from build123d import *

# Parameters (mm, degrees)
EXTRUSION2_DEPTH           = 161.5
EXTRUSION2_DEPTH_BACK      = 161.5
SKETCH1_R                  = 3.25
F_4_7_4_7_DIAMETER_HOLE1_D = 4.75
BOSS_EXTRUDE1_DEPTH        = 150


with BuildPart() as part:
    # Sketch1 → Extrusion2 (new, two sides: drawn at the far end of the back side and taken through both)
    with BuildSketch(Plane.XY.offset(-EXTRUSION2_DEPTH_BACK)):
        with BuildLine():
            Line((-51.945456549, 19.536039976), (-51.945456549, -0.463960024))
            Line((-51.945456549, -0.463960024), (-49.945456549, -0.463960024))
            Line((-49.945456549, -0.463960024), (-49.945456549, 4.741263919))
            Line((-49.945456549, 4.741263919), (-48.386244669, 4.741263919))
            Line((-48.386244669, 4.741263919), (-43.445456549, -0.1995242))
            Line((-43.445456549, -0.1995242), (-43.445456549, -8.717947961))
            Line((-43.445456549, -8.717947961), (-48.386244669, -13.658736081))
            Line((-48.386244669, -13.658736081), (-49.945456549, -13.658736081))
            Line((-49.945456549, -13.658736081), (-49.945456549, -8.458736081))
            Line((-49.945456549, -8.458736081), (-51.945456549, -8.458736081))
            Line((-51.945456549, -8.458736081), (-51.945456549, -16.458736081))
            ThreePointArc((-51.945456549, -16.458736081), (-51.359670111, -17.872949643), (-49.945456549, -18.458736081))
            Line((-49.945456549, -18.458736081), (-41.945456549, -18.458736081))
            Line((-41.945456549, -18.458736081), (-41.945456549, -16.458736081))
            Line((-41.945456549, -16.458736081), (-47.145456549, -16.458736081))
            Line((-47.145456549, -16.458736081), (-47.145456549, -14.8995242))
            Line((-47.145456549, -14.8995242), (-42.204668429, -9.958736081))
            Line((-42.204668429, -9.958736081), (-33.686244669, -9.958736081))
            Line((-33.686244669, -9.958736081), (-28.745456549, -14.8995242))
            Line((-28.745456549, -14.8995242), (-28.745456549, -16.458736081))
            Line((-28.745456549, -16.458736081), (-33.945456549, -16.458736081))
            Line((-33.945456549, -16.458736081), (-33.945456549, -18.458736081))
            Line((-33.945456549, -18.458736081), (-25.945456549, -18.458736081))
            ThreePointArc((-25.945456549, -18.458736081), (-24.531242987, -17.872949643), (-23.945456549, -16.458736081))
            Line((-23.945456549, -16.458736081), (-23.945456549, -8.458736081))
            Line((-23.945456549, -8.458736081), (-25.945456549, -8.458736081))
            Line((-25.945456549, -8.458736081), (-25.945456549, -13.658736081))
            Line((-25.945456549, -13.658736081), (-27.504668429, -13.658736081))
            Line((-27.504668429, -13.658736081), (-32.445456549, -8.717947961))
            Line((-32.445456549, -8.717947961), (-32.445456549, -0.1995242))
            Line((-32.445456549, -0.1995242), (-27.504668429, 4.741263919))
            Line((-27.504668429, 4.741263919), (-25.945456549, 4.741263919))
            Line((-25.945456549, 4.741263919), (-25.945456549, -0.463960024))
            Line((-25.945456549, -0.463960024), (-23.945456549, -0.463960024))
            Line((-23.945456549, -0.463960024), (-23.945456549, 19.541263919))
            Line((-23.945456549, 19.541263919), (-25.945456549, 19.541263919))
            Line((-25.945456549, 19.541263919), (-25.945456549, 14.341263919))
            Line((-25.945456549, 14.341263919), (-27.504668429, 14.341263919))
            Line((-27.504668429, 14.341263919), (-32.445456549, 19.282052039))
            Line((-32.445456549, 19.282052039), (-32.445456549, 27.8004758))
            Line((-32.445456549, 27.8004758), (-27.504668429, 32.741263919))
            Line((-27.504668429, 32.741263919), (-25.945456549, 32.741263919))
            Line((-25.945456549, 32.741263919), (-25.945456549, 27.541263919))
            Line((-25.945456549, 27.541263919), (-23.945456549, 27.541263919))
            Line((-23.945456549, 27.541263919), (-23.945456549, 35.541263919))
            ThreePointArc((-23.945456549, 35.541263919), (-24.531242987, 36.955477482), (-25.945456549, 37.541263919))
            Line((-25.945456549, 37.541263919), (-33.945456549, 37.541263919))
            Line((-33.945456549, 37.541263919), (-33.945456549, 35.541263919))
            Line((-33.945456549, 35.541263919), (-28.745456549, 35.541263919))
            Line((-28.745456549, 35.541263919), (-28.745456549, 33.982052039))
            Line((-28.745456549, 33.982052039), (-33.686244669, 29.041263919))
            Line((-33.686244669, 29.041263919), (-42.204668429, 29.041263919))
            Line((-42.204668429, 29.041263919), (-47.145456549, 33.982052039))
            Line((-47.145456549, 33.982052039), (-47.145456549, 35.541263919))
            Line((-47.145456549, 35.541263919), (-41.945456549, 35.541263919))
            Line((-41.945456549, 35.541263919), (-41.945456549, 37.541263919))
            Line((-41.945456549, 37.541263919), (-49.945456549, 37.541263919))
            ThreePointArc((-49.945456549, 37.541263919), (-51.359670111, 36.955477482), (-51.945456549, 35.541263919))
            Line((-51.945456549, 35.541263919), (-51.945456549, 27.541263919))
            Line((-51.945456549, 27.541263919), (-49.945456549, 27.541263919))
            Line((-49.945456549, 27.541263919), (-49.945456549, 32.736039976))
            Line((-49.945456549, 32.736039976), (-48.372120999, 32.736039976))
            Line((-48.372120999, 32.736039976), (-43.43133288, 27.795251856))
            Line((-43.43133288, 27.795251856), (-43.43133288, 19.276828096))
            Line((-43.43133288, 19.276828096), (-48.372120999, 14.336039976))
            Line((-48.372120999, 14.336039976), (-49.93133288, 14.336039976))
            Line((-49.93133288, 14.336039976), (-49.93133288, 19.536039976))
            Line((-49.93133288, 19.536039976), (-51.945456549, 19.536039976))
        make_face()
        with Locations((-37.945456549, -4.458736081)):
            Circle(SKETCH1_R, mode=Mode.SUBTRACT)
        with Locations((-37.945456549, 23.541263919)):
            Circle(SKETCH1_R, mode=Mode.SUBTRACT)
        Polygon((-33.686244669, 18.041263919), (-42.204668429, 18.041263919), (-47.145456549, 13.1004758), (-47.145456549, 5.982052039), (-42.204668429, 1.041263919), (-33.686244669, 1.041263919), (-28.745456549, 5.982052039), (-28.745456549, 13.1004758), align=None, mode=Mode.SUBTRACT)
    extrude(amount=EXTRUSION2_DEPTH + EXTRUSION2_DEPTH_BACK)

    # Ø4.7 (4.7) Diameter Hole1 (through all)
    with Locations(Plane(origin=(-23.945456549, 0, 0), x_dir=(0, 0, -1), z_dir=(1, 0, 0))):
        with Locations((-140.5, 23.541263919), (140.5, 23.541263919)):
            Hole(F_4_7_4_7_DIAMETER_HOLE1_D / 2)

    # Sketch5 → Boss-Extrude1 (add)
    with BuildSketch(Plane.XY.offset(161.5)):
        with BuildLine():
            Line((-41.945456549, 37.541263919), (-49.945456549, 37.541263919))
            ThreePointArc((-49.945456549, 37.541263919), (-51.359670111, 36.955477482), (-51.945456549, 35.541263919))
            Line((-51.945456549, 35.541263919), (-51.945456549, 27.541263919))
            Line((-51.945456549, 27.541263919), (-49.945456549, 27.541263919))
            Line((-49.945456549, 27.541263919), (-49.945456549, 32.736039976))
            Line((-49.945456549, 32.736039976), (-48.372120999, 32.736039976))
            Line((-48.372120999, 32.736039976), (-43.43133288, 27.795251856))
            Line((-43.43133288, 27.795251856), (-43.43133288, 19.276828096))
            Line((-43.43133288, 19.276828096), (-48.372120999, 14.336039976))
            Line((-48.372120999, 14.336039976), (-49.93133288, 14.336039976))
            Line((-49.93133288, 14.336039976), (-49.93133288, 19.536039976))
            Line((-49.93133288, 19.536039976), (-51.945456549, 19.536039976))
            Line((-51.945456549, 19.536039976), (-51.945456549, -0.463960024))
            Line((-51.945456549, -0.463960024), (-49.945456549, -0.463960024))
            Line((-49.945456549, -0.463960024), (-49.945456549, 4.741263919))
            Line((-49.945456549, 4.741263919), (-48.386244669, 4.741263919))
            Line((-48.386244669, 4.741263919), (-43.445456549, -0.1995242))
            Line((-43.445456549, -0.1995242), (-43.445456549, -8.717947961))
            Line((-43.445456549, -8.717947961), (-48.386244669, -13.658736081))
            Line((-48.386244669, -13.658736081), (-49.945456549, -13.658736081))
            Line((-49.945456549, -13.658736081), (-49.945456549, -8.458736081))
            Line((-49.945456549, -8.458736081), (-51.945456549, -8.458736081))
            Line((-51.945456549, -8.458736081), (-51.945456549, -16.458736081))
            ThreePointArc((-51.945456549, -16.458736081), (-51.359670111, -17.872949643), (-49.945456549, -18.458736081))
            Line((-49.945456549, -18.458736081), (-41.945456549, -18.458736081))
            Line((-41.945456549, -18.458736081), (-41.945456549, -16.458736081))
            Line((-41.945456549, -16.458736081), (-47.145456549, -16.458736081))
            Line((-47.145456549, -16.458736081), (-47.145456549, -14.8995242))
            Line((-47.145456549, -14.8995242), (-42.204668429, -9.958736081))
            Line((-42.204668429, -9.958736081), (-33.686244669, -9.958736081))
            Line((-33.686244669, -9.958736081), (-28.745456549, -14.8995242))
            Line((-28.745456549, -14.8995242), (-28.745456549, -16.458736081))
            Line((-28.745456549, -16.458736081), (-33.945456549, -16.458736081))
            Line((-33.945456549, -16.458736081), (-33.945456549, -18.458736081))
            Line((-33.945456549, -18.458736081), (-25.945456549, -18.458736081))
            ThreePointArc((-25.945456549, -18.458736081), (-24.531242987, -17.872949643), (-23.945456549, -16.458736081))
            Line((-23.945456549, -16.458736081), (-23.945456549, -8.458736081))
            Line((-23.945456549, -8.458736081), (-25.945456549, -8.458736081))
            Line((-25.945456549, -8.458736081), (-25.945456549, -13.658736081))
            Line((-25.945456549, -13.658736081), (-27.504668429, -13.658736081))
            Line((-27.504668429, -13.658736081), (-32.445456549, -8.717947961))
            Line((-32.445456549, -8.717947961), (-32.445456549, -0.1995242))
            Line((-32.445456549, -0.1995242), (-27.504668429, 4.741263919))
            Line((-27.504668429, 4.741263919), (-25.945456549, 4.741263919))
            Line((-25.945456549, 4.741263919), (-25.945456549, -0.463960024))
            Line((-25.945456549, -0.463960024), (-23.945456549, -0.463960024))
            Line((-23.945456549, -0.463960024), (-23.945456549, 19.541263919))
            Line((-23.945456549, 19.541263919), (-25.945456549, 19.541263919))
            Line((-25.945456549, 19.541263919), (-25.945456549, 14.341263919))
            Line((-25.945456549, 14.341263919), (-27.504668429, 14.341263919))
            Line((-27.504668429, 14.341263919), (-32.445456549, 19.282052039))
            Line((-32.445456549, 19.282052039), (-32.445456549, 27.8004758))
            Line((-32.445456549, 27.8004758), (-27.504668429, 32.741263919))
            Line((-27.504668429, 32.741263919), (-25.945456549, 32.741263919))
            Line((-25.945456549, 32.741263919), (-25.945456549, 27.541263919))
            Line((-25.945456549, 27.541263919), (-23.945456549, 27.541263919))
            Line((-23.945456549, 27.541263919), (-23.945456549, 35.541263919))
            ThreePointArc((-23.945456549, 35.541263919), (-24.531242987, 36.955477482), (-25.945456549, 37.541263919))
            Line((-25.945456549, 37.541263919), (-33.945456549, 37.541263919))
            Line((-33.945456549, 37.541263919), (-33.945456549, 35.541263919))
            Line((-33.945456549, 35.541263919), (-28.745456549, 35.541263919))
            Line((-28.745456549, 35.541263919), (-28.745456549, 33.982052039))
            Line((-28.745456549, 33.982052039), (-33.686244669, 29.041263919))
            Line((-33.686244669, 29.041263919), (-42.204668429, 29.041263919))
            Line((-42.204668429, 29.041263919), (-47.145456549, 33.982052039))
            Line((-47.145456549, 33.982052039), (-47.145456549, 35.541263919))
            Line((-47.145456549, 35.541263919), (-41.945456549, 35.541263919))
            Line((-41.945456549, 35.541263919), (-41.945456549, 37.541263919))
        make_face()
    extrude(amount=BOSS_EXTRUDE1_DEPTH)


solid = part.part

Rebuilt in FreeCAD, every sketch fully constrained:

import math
import FreeCAD as App
import Part
import Sketcher
from FreeCAD import Vector

doc = App.newDocument("Part")
body = doc.addObject("PartDesign::Body", "Body")

# Sketch on XY plane
sketch1 = body.newObject("Sketcher::SketchObject", "Sketch")
sketch1.AttachmentSupport = (doc.getObject("XY_Plane"), [""])
sketch1.MapMode = "FlatFace"
sketch1.addGeometry([
    Part.LineSegment(Vector(-51.9, 19.5, 0), Vector(-51.9, -0.5, 0)),  # 0
    Part.LineSegment(Vector(-51.9, -0.5, 0), Vector(-49.9, -0.5, 0)),  # 1
    Part.LineSegment(Vector(-49.9, -0.5, 0), Vector(-49.9, 4.7, 0)),  # 2
    Part.LineSegment(Vector(-49.9, 4.7, 0), Vector(-48.4, 4.7, 0)),  # 3
    Part.LineSegment(Vector(-48.4, 4.7, 0), Vector(-43.4, -0.2, 0)),  # 4
    Part.LineSegment(Vector(-43.4, -0.2, 0), Vector(-43.4, -8.7, 0)),  # 5
    Part.LineSegment(Vector(-43.4, -8.7, 0), Vector(-48.4, -13.7, 0)),  # 6
    Part.LineSegment(Vector(-48.4, -13.7, 0), Vector(-49.9, -13.7, 0)),  # 7
    Part.LineSegment(Vector(-49.9, -13.7, 0), Vector(-49.9, -8.5, 0)),  # 8
    Part.LineSegment(Vector(-49.9, -8.5, 0), Vector(-51.9, -8.5, 0)),  # 9
    Part.LineSegment(Vector(-51.9, -8.5, 0), Vector(-51.9, -16.5, 0)),  # 10
    Part.ArcOfCircle(Part.Circle(Vector(-49.9, -16.5, 0), Vector(0, 0, 1), 2), math.radians(-180), math.radians(-90)),  # 11
    Part.LineSegment(Vector(-49.9, -18.5, 0), Vector(-41.9, -18.5, 0)),  # 12
    Part.LineSegment(Vector(-41.9, -18.5, 0), Vector(-41.9, -16.5, 0)),  # 13
    Part.LineSegment(Vector(-41.9, -16.5, 0), Vector(-47.1, -16.5, 0)),  # 14
    Part.LineSegment(Vector(-47.1, -16.5, 0), Vector(-47.1, -14.9, 0)),  # 15
    Part.LineSegment(Vector(-47.1, -14.9, 0), Vector(-42.2, -10, 0)),  # 16
    Part.LineSegment(Vector(-42.2, -10, 0), Vector(-33.7, -10, 0)),  # 17
    Part.LineSegment(Vector(-33.7, -10, 0), Vector(-28.7, -14.9, 0)),  # 18
    Part.LineSegment(Vector(-28.7, -14.9, 0), Vector(-28.7, -16.5, 0)),  # 19
    Part.LineSegment(Vector(-28.7, -16.5, 0), Vector(-33.9, -16.5, 0)),  # 20
    Part.LineSegment(Vector(-33.9, -16.5, 0), Vector(-33.9, -18.5, 0)),  # 21
    Part.LineSegment(Vector(-33.9, -18.5, 0), Vector(-25.9, -18.5, 0)),  # 22
    Part.ArcOfCircle(Part.Circle(Vector(-25.9, -16.5, 0), Vector(0, 0, 1), 2), math.radians(-90), math.radians(0)),  # 23
    Part.LineSegment(Vector(-23.9, -16.5, 0), Vector(-23.9, -8.5, 0)),  # 24
    Part.LineSegment(Vector(-23.9, -8.5, 0), Vector(-25.9, -8.5, 0)),  # 25
    Part.LineSegment(Vector(-25.9, -8.5, 0), Vector(-25.9, -13.7, 0)),  # 26
    Part.LineSegment(Vector(-25.9, -13.7, 0), Vector(-27.5, -13.7, 0)),  # 27
    Part.LineSegment(Vector(-27.5, -13.7, 0), Vector(-32.4, -8.7, 0)),  # 28
    Part.LineSegment(Vector(-32.4, -8.7, 0), Vector(-32.4, -0.2, 0)),  # 29
    Part.LineSegment(Vector(-32.4, -0.2, 0), Vector(-27.5, 4.7, 0)),  # 30
    Part.LineSegment(Vector(-27.5, 4.7, 0), Vector(-25.9, 4.7, 0)),  # 31
    Part.LineSegment(Vector(-25.9, 4.7, 0), Vector(-25.9, -0.5, 0)),  # 32
    Part.LineSegment(Vector(-25.9, -0.5, 0), Vector(-23.9, -0.5, 0)),  # 33
    Part.LineSegment(Vector(-23.9, -0.5, 0), Vector(-23.9, 19.5, 0)),  # 34
    Part.LineSegment(Vector(-23.9, 19.5, 0), Vector(-25.9, 19.5, 0)),  # 35
    Part.LineSegment(Vector(-25.9, 19.5, 0), Vector(-25.9, 14.3, 0)),  # 36
    Part.LineSegment(Vector(-25.9, 14.3, 0), Vector(-27.5, 14.3, 0)),  # 37
    Part.LineSegment(Vector(-27.5, 14.3, 0), Vector(-32.4, 19.3, 0)),  # 38
    Part.LineSegment(Vector(-32.4, 19.3, 0), Vector(-32.4, 27.8, 0)),  # 39
    Part.LineSegment(Vector(-32.4, 27.8, 0), Vector(-27.5, 32.7, 0)),  # 40
    Part.LineSegment(Vector(-27.5, 32.7, 0), Vector(-25.9, 32.7, 0)),  # 41
    Part.LineSegment(Vector(-25.9, 32.7, 0), Vector(-25.9, 27.5, 0)),  # 42
    Part.LineSegment(Vector(-25.9, 27.5, 0), Vector(-23.9, 27.5, 0)),  # 43
    Part.LineSegment(Vector(-23.9, 27.5, 0), Vector(-23.9, 35.5, 0)),  # 44
    Part.ArcOfCircle(Part.Circle(Vector(-25.9, 35.5, 0), Vector(0, 0, 1), 2), math.radians(0), math.radians(90)),  # 45
    Part.LineSegment(Vector(-25.9, 37.5, 0), Vector(-33.9, 37.5, 0)),  # 46
    Part.LineSegment(Vector(-33.9, 37.5, 0), Vector(-33.9, 35.5, 0)),  # 47
    Part.LineSegment(Vector(-33.9, 35.5, 0), Vector(-28.7, 35.5, 0)),  # 48
    Part.LineSegment(Vector(-28.7, 35.5, 0), Vector(-28.7, 34, 0)),  # 49
    Part.LineSegment(Vector(-28.7, 34, 0), Vector(-33.7, 29, 0)),  # 50
    Part.LineSegment(Vector(-33.7, 29, 0), Vector(-42.2, 29, 0)),  # 51
    Part.LineSegment(Vector(-42.2, 29, 0), Vector(-47.1, 34, 0)),  # 52
    Part.LineSegment(Vector(-47.1, 34, 0), Vector(-47.1, 35.5, 0)),  # 53
    Part.LineSegment(Vector(-47.1, 35.5, 0), Vector(-41.9, 35.5, 0)),  # 54
    Part.LineSegment(Vector(-41.9, 35.5, 0), Vector(-41.9, 37.5, 0)),  # 55
    Part.LineSegment(Vector(-41.9, 37.5, 0), Vector(-49.9, 37.5, 0)),  # 56
    Part.ArcOfCircle(Part.Circle(Vector(-49.9, 35.5, 0), Vector(0, 0, 1), 2), math.radians(90), math.radians(180)),  # 57
    Part.LineSegment(Vector(-51.9, 35.5, 0), Vector(-51.9, 27.5, 0)),  # 58
    Part.LineSegment(Vector(-51.9, 27.5, 0), Vector(-49.9, 27.5, 0)),  # 59
    Part.LineSegment(Vector(-49.9, 27.5, 0), Vector(-49.9, 32.7, 0)),  # 60
    Part.LineSegment(Vector(-49.9, 32.7, 0), Vector(-48.4, 32.7, 0)),  # 61
    Part.LineSegment(Vector(-48.4, 32.7, 0), Vector(-43.4, 27.8, 0)),  # 62
    Part.LineSegment(Vector(-43.4, 27.8, 0), Vector(-43.4, 19.3, 0)),  # 63
    Part.LineSegment(Vector(-43.4, 19.3, 0), Vector(-48.4, 14.3, 0)),  # 64
    Part.LineSegment(Vector(-48.4, 14.3, 0), Vector(-49.9, 14.3, 0)),  # 65
    Part.LineSegment(Vector(-49.9, 14.3, 0), Vector(-49.9, 19.5, 0)),  # 66
    Part.LineSegment(Vector(-49.9, 19.5, 0), Vector(-51.9, 19.5, 0)),  # 67
    Part.Circle(Vector(-37.9, -4.5, 0), Vector(0, 0, 1), 3.2),  # 68
    Part.LineSegment(Vector(-42.2, 18, 0), Vector(-33.7, 18, 0)),  # 69
    Part.LineSegment(Vector(-33.7, 18, 0), Vector(-28.7, 13.1, 0)),  # 70
    Part.LineSegment(Vector(-28.7, 13.1, 0), Vector(-28.7, 6, 0)),  # 71
    Part.LineSegment(Vector(-28.7, 6, 0), Vector(-33.7, 1, 0)),  # 72
    Part.LineSegment(Vector(-33.7, 1, 0), Vector(-42.2, 1, 0)),  # 73
    Part.LineSegment(Vector(-42.2, 1, 0), Vector(-47.1, 6, 0)),  # 74
    Part.LineSegment(Vector(-47.1, 6, 0), Vector(-47.1, 13.1, 0)),  # 75
    Part.LineSegment(Vector(-47.1, 13.1, 0), Vector(-42.2, 18, 0)),  # 76
    Part.Circle(Vector(-37.9, 23.5, 0), Vector(0, 0, 1), 3.2),  # 77
], False)
sketch1.addConstraint([
    Sketcher.Constraint("Coincident", 0, 2, 1, 1),
    Sketcher.Constraint("Coincident", 1, 2, 2, 1),
    Sketcher.Constraint("Coincident", 2, 2, 3, 1),
    Sketcher.Constraint("Coincident", 3, 2, 4, 1),
    Sketcher.Constraint("Coincident", 4, 2, 5, 1),
    Sketcher.Constraint("Coincident", 5, 2, 6, 1),
    Sketcher.Constraint("Coincident", 6, 2, 7, 1),
    Sketcher.Constraint("Coincident", 7, 2, 8, 1),
    Sketcher.Constraint("Coincident", 8, 2, 9, 1),
    Sketcher.Constraint("Coincident", 9, 2, 10, 1),
    Sketcher.Constraint("Tangent", 10, 2, 11, 1),
    Sketcher.Constraint("Tangent", 11, 2, 12, 1),
    Sketcher.Constraint("Coincident", 12, 2, 13, 1),
    Sketcher.Constraint("Coincident", 13, 2, 14, 1),
    Sketcher.Constraint("Coincident", 14, 2, 15, 1),
    Sketcher.Constraint("Coincident", 15, 2, 16, 1),
    Sketcher.Constraint("Coincident", 16, 2, 17, 1),
    Sketcher.Constraint("Coincident", 17, 2, 18, 1),
    Sketcher.Constraint("Coincident", 18, 2, 19, 1),
    Sketcher.Constraint("Coincident", 19, 2, 20, 1),
    Sketcher.Constraint("Coincident", 20, 2, 21, 1),
    Sketcher.Constraint("Coincident", 21, 2, 22, 1),
    Sketcher.Constraint("Tangent", 22, 2, 23, 1),
    Sketcher.Constraint("Tangent", 23, 2, 24, 1),
    Sketcher.Constraint("Coincident", 24, 2, 25, 1),
    Sketcher.Constraint("Coincident", 25, 2, 26, 1),
    Sketcher.Constraint("Coincident", 26, 2, 27, 1),
    Sketcher.Constraint("Coincident", 27, 2, 28, 1),
    Sketcher.Constraint("Coincident", 28, 2, 29, 1),
    Sketcher.Constraint("Coincident", 29, 2, 30, 1),
    Sketcher.Constraint("Coincident", 30, 2, 31, 1),
    Sketcher.Constraint("Coincident", 31, 2, 32, 1),
    Sketcher.Constraint("Coincident", 32, 2, 33, 1),
    Sketcher.Constraint("Coincident", 33, 2, 34, 1),
    Sketcher.Constraint("Coincident", 34, 2, 35, 1),
    Sketcher.Constraint("Coincident", 35, 2, 36, 1),
    Sketcher.Constraint("Coincident", 36, 2, 37, 1),
    Sketcher.Constraint("Coincident", 37, 2, 38, 1),
    Sketcher.Constraint("Coincident", 38, 2, 39, 1),
    Sketcher.Constraint("Coincident", 39, 2, 40, 1),
    Sketcher.Constraint("Coincident", 40, 2, 41, 1),
    Sketcher.Constraint("Coincident", 41, 2, 42, 1),
    Sketcher.Constraint("Coincident", 42, 2, 43, 1),
    Sketcher.Constraint("Coincident", 43, 2, 44, 1),
    Sketcher.Constraint("Tangent", 44, 2, 45, 1),
    Sketcher.Constraint("Tangent", 45, 2, 46, 1),
    Sketcher.Constraint("Coincident", 46, 2, 47, 1),
    Sketcher.Constraint("Coincident", 47, 2, 48, 1),
    Sketcher.Constraint("Coincident", 48, 2, 49, 1),
    Sketcher.Constraint("Coincident", 49, 2, 50, 1),
    Sketcher.Constraint("Coincident", 50, 2, 51, 1),
    Sketcher.Constraint("Coincident", 51, 2, 52, 1),
    Sketcher.Constraint("Coincident", 52, 2, 53, 1),
    Sketcher.Constraint("Coincident", 53, 2, 54, 1),
    Sketcher.Constraint("Coincident", 54, 2, 55, 1),
    Sketcher.Constraint("Coincident", 55, 2, 56, 1),
    Sketcher.Constraint("Tangent", 56, 2, 57, 1),
    Sketcher.Constraint("Tangent", 57, 2, 58, 1),
    Sketcher.Constraint("Coincident", 58, 2, 59, 1),
    Sketcher.Constraint("Coincident", 59, 2, 60, 1),
    Sketcher.Constraint("Coincident", 60, 2, 61, 1),
    Sketcher.Constraint("Coincident", 61, 2, 62, 1),
    Sketcher.Constraint("Coincident", 62, 2, 63, 1),
    Sketcher.Constraint("Coincident", 63, 2, 64, 1),
    Sketcher.Constraint("Coincident", 64, 2, 65, 1),
    Sketcher.Constraint("Coincident", 65, 2, 66, 1),
    Sketcher.Constraint("Coincident", 66, 2, 67, 1),
    Sketcher.Constraint("Coincident", 67, 2, 0, 1),
    Sketcher.Constraint("Coincident", 69, 2, 70, 1),
    Sketcher.Constraint("Coincident", 70, 2, 71, 1),
    Sketcher.Constraint("Coincident", 71, 2, 72, 1),
    Sketcher.Constraint("Coincident", 72, 2, 73, 1),
    Sketcher.Constraint("Coincident", 73, 2, 74, 1),
    Sketcher.Constraint("Coincident", 74, 2, 75, 1),
    Sketcher.Constraint("Coincident", 75, 2, 76, 1),
    Sketcher.Constraint("Coincident", 76, 2, 69, 1),
    Sketcher.Constraint("Vertical", 0),
    Sketcher.Constraint("Horizontal", 1),
    Sketcher.Constraint("Vertical", 2),
    Sketcher.Constraint("Horizontal", 3),
    Sketcher.Constraint("Vertical", 5),
    Sketcher.Constraint("Horizontal", 7),
    Sketcher.Constraint("Vertical", 8),
    Sketcher.Constraint("Horizontal", 9),
    Sketcher.Constraint("Vertical", 10),
    Sketcher.Constraint("Horizontal", 12),
    Sketcher.Constraint("Vertical", 13),
    Sketcher.Constraint("Horizontal", 14),
    Sketcher.Constraint("Vertical", 15),
    Sketcher.Constraint("Horizontal", 17),
    Sketcher.Constraint("Vertical", 19),
    Sketcher.Constraint("Horizontal", 20),
    Sketcher.Constraint("Vertical", 21),
    Sketcher.Constraint("Horizontal", 22),
    Sketcher.Constraint("Vertical", 24),
    Sketcher.Constraint("Horizontal", 25),
    Sketcher.Constraint("Vertical", 26),
    Sketcher.Constraint("Horizontal", 27),
    Sketcher.Constraint("Vertical", 29),
    Sketcher.Constraint("Horizontal", 31),
    Sketcher.Constraint("Vertical", 32),
    Sketcher.Constraint("Horizontal", 33),
    Sketcher.Constraint("Vertical", 34),
    Sketcher.Constraint("Horizontal", 35),
    Sketcher.Constraint("Vertical", 36),
    Sketcher.Constraint("Horizontal", 37),
    Sketcher.Constraint("Vertical", 39),
    Sketcher.Constraint("Horizontal", 41),
    Sketcher.Constraint("Vertical", 42),
    Sketcher.Constraint("Horizontal", 43),
    Sketcher.Constraint("Vertical", 44),
    Sketcher.Constraint("Horizontal", 46),
    Sketcher.Constraint("Vertical", 47),
    Sketcher.Constraint("Horizontal", 48),
    Sketcher.Constraint("Vertical", 49),
    Sketcher.Constraint("Horizontal", 51),
    Sketcher.Constraint("Vertical", 53),
    Sketcher.Constraint("Horizontal", 54),
    Sketcher.Constraint("Vertical", 55),
    Sketcher.Constraint("Horizontal", 56),
    Sketcher.Constraint("Vertical", 58),
    Sketcher.Constraint("Horizontal", 59),
    Sketcher.Constraint("Vertical", 60),
    Sketcher.Constraint("Horizontal", 61),
    Sketcher.Constraint("Vertical", 63),
    Sketcher.Constraint("Horizontal", 65),
    Sketcher.Constraint("Vertical", 66),
    Sketcher.Constraint("Horizontal", 67),
    Sketcher.Constraint("Horizontal", 69),
    Sketcher.Constraint("Vertical", 71),
    Sketcher.Constraint("Horizontal", 73),
    Sketcher.Constraint("Vertical", 75),
    Sketcher.Constraint("Equal", 11, 23),
    Sketcher.Constraint("Equal", 23, 45),
    Sketcher.Constraint("Equal", 45, 57),
    Sketcher.Constraint("Equal", 68, 77),
    Sketcher.Constraint("Perpendicular", 4, 6),
    Sketcher.Constraint("Parallel", 6, 16),
    Sketcher.Constraint("Perpendicular", 16, 18),
    Sketcher.Constraint("Parallel", 18, 28),
    Sketcher.Constraint("Perpendicular", 28, 30),
    Sketcher.Constraint("Perpendicular", 30, 38),
    Sketcher.Constraint("Perpendicular", 38, 40),
    Sketcher.Constraint("Parallel", 40, 50),
    Sketcher.Constraint("Perpendicular", 50, 52),
    Sketcher.Constraint("Parallel", 52, 62),
    Sketcher.Constraint("Perpendicular", 62, 64),
    Sketcher.Constraint("Perpendicular", 64, 70),
    Sketcher.Constraint("Perpendicular", 70, 72),
    Sketcher.Constraint("Perpendicular", 72, 74),
    Sketcher.Constraint("Perpendicular", 74, 76),
    Sketcher.Constraint("Horizontal", 11, 3, 23, 3),
    Sketcher.Constraint("Horizontal", 45, 3, 57, 3),
    Sketcher.Constraint("Horizontal", 10, 2, 13, 2),
    Sketcher.Constraint("Horizontal", 15, 2, 18, 2),
    Sketcher.Constraint("Horizontal", 14, 2, 19, 2),
    Sketcher.Constraint("Horizontal", 9, 2, 24, 2),
    Sketcher.Constraint("Horizontal", 7, 2, 26, 2),
    Sketcher.Constraint("Horizontal", 5, 2, 28, 2),
    Sketcher.Constraint("Horizontal", 4, 2, 29, 2),
    Sketcher.Constraint("Horizontal", 3, 2, 30, 2),
    Sketcher.Constraint("Horizontal", 1, 2, 32, 2),
    Sketcher.Constraint("Horizontal", 44, 2, 47, 2),
    Sketcher.Constraint("Horizontal", 49, 2, 52, 2),
    Sketcher.Constraint("Horizontal", 48, 2, 53, 2),
    Sketcher.Constraint("Horizontal", 43, 2, 58, 2),
    Sketcher.Constraint("Horizontal", 71, 2, 74, 2),
    Sketcher.Constraint("Horizontal", 70, 2, 75, 2),
    Sketcher.Constraint("Vertical", 23, 3, 45, 3),
    Sketcher.Constraint("Vertical", 11, 3, 57, 3),
    Sketcher.Constraint("Vertical", 68, 3, 77, 3),
    Sketcher.Constraint("Vertical", 57, 3, 1, 2),
    Sketcher.Constraint("Vertical", 3, 2, 6, 2),
    Sketcher.Constraint("Vertical", 2, 2, 7, 2),
    Sketcher.Constraint("Vertical", 0, 2, 9, 2),
    Sketcher.Constraint("Vertical", 22, 2, 25, 2),
    Sketcher.Constraint("Vertical", 27, 2, 30, 2),
    Sketcher.Constraint("Vertical", 26, 2, 31, 2),
    Sketcher.Constraint("Vertical", 24, 2, 33, 2),
    Sketcher.Constraint("Vertical", 32, 2, 35, 2),
    Sketcher.Constraint("Vertical", 30, 2, 37, 2),
    Sketcher.Constraint("Vertical", 29, 2, 38, 2),
    Sketcher.Constraint("Vertical", 37, 2, 40, 2),
    Sketcher.Constraint("Vertical", 36, 2, 41, 2),
    Sketcher.Constraint("Vertical", 21, 2, 46, 2),
    Sketcher.Constraint("Vertical", 19, 2, 48, 2),
    Sketcher.Constraint("Vertical", 17, 2, 50, 2),
    Sketcher.Constraint("Vertical", 16, 2, 51, 2),
    Sketcher.Constraint("Vertical", 13, 2, 54, 2),
    Sketcher.Constraint("Vertical", 56, 2, 59, 2),
    Sketcher.Constraint("Vertical", 61, 2, 64, 2),
    Sketcher.Constraint("Vertical", 50, 2, 69, 2),
    Sketcher.Constraint("Vertical", 49, 2, 70, 2),
    Sketcher.Constraint("Vertical", 69, 2, 72, 2),
    Sketcher.Constraint("Vertical", 51, 2, 73, 2),
    Sketcher.Constraint("Equal", 14, 20),
    Sketcher.Constraint("Equal", 12, 22),
    Sketcher.Constraint("Equal", 7, 27),
    Sketcher.Constraint("Equal", 41, 65),
    Sketcher.Constraint("Equal", 73, 5),
    Sketcher.Constraint("Equal", 54, 8),
    Sketcher.Constraint("Equal", 56, 10),
    Sketcher.Constraint("Equal", 65, 15),
    Sketcher.Constraint("Equal", 26, 36),
    Sketcher.Constraint("Equal", 29, 39),
    Sketcher.Constraint("Equal", 36, 42),
    Sketcher.Constraint("Equal", 24, 44),
    Sketcher.Constraint("Equal", 19, 49),
    Sketcher.Constraint("Equal", 39, 63),
    Sketcher.Constraint("Equal", 42, 66),
    Sketcher.Constraint("Equal", 6, 16),
    Sketcher.Constraint("Equal", 52, 62),
    Sketcher.Constraint("Radius", 11, 2.0),
    Sketcher.Constraint("Diameter", 68, 6.5),
    Sketcher.Constraint("DistanceX", 12, 1, 12, 2, 8.0),
    Sketcher.Constraint("DistanceY", 0, 2, 0, 1, 20.0),
    Sketcher.Constraint("DistanceX", 14, 2, 14, 1, 5.2),
    Sketcher.Constraint("DistanceX", 3, 1, 3, 2, 1.559212),
    Sketcher.Constraint("Distance", 4, 6.98733),
    Sketcher.Constraint("DistanceX", 17, 1, 17, 2, 8.518424),
    Sketcher.Constraint("DistanceX", 61, 1, 61, 2, 1.573336),
    Sketcher.Constraint("DistanceY", 2, 1, 2, 2, 5.205224),
    Sketcher.Constraint("DistanceY", 34, 1, 34, 2, 20.005224),
    Sketcher.Constraint("DistanceY", 71, 2, 71, 1, 7.118424),
    Sketcher.Constraint("DistanceY", 0, 2, -1, 1, 0.46396),
    Sketcher.Constraint("DistanceX", 16, 2, -1, 1, 42.204668),
    Sketcher.Constraint("DistanceX", 68, 3, -1, 1, 37.945457),
    Sketcher.Constraint("DistanceY", 68, 3, -1, 1, 4.458736),
    Sketcher.Constraint("DistanceY", -1, 1, 77, 3, 23.541264),
    Sketcher.Constraint("DistanceY", -1, 1, 69, 2, 18.041264),
])
pad1 = body.newObject("PartDesign::Pad", "Pad")
pad1.Profile = sketch1
pad1.Type = "TwoLengths"
pad1.Length = 161.5
pad1.Length2 = 161.5

# Sketch on YZ plane
sketch2 = body.newObject("Sketcher::SketchObject", "Sketch001")
sketch2.AttachmentSupport = (doc.getObject("YZ_Plane"), [""])
sketch2.MapMode = "FlatFace"
sketch2.AttachmentOffset = App.Placement(Vector(0, 0, -23.945457), App.Rotation())
sketch2.addGeometry([
    Part.Circle(Vector(23.5, 140.5, 0), Vector(0, 0, 1), 2.4),
    Part.Circle(Vector(23.5, -140.5, 0), Vector(0, 0, 1), 2.4),
], False)
sketch2.addConstraint([
    Sketcher.Constraint("Equal", 0, 1),
    Sketcher.Constraint("Symmetric", 0, 3, 1, 3, -1),
    Sketcher.Constraint("Diameter", 0, 4.75),
    Sketcher.Constraint("DistanceY", 1, 3, 0, 3, 281.0),
    Sketcher.Constraint("DistanceX", -1, 1, 0, 3, 23.541264),
])
doc.recompute()
hole = body.newObject("PartDesign::Hole", "Hole")
hole.Profile = sketch2
hole.ThreadType = "None"
hole.Diameter = 4.75
hole.DepthType = "ThroughAll"

# Sketch on XY plane
sketch3 = body.newObject("Sketcher::SketchObject", "Sketch002")
sketch3.AttachmentSupport = (doc.getObject("XY_Plane"), [""])
sketch3.MapMode = "FlatFace"
sketch3.AttachmentOffset = App.Placement(Vector(0, 0, 161.5), App.Rotation())
sketch3.addGeometry([
    Part.LineSegment(Vector(-41.9, 37.5, 0), Vector(-49.9, 37.5, 0)),  # 0
    Part.ArcOfCircle(Part.Circle(Vector(-49.9, 35.5, 0), Vector(0, 0, 1), 2), math.radians(90), math.radians(180)),  # 1
    Part.LineSegment(Vector(-51.9, 35.5, 0), Vector(-51.9, 27.5, 0)),  # 2
    Part.LineSegment(Vector(-51.9, 27.5, 0), Vector(-49.9, 27.5, 0)),  # 3
    Part.LineSegment(Vector(-49.9, 27.5, 0), Vector(-49.9, 32.7, 0)),  # 4
    Part.LineSegment(Vector(-49.9, 32.7, 0), Vector(-48.4, 32.7, 0)),  # 5
    Part.LineSegment(Vector(-48.4, 32.7, 0), Vector(-43.4, 27.8, 0)),  # 6
    Part.LineSegment(Vector(-43.4, 27.8, 0), Vector(-43.4, 19.3, 0)),  # 7
    Part.LineSegment(Vector(-43.4, 19.3, 0), Vector(-48.4, 14.3, 0)),  # 8
    Part.LineSegment(Vector(-48.4, 14.3, 0), Vector(-49.9, 14.3, 0)),  # 9
    Part.LineSegment(Vector(-49.9, 14.3, 0), Vector(-49.9, 19.5, 0)),  # 10
    Part.LineSegment(Vector(-49.9, 19.5, 0), Vector(-51.9, 19.5, 0)),  # 11
    Part.LineSegment(Vector(-51.9, 19.5, 0), Vector(-51.9, -0.5, 0)),  # 12
    Part.LineSegment(Vector(-51.9, -0.5, 0), Vector(-49.9, -0.5, 0)),  # 13
    Part.LineSegment(Vector(-49.9, -0.5, 0), Vector(-49.9, 4.7, 0)),  # 14
    Part.LineSegment(Vector(-49.9, 4.7, 0), Vector(-48.4, 4.7, 0)),  # 15
    Part.LineSegment(Vector(-48.4, 4.7, 0), Vector(-43.4, -0.2, 0)),  # 16
    Part.LineSegment(Vector(-43.4, -0.2, 0), Vector(-43.4, -8.7, 0)),  # 17
    Part.LineSegment(Vector(-43.4, -8.7, 0), Vector(-48.4, -13.7, 0)),  # 18
    Part.LineSegment(Vector(-48.4, -13.7, 0), Vector(-49.9, -13.7, 0)),  # 19
    Part.LineSegment(Vector(-49.9, -13.7, 0), Vector(-49.9, -8.5, 0)),  # 20
    Part.LineSegment(Vector(-49.9, -8.5, 0), Vector(-51.9, -8.5, 0)),  # 21
    Part.LineSegment(Vector(-51.9, -8.5, 0), Vector(-51.9, -16.5, 0)),  # 22
    Part.ArcOfCircle(Part.Circle(Vector(-49.9, -16.5, 0), Vector(0, 0, 1), 2), math.radians(-180), math.radians(-90)),  # 23
    Part.LineSegment(Vector(-49.9, -18.5, 0), Vector(-41.9, -18.5, 0)),  # 24
    Part.LineSegment(Vector(-41.9, -18.5, 0), Vector(-41.9, -16.5, 0)),  # 25
    Part.LineSegment(Vector(-41.9, -16.5, 0), Vector(-47.1, -16.5, 0)),  # 26
    Part.LineSegment(Vector(-47.1, -16.5, 0), Vector(-47.1, -14.9, 0)),  # 27
    Part.LineSegment(Vector(-47.1, -14.9, 0), Vector(-42.2, -10, 0)),  # 28
    Part.LineSegment(Vector(-42.2, -10, 0), Vector(-33.7, -10, 0)),  # 29
    Part.LineSegment(Vector(-33.7, -10, 0), Vector(-28.7, -14.9, 0)),  # 30
    Part.LineSegment(Vector(-28.7, -14.9, 0), Vector(-28.7, -16.5, 0)),  # 31
    Part.LineSegment(Vector(-28.7, -16.5, 0), Vector(-33.9, -16.5, 0)),  # 32
    Part.LineSegment(Vector(-33.9, -16.5, 0), Vector(-33.9, -18.5, 0)),  # 33
    Part.LineSegment(Vector(-33.9, -18.5, 0), Vector(-25.9, -18.5, 0)),  # 34
    Part.ArcOfCircle(Part.Circle(Vector(-25.9, -16.5, 0), Vector(0, 0, 1), 2), math.radians(-90), math.radians(0)),  # 35
    Part.LineSegment(Vector(-23.9, -16.5, 0), Vector(-23.9, -8.5, 0)),  # 36
    Part.LineSegment(Vector(-23.9, -8.5, 0), Vector(-25.9, -8.5, 0)),  # 37
    Part.LineSegment(Vector(-25.9, -8.5, 0), Vector(-25.9, -13.7, 0)),  # 38
    Part.LineSegment(Vector(-25.9, -13.7, 0), Vector(-27.5, -13.7, 0)),  # 39
    Part.LineSegment(Vector(-27.5, -13.7, 0), Vector(-32.4, -8.7, 0)),  # 40
    Part.LineSegment(Vector(-32.4, -8.7, 0), Vector(-32.4, -0.2, 0)),  # 41
    Part.LineSegment(Vector(-32.4, -0.2, 0), Vector(-27.5, 4.7, 0)),  # 42
    Part.LineSegment(Vector(-27.5, 4.7, 0), Vector(-25.9, 4.7, 0)),  # 43
    Part.LineSegment(Vector(-25.9, 4.7, 0), Vector(-25.9, -0.5, 0)),  # 44
    Part.LineSegment(Vector(-25.9, -0.5, 0), Vector(-23.9, -0.5, 0)),  # 45
    Part.LineSegment(Vector(-23.9, -0.5, 0), Vector(-23.9, 19.5, 0)),  # 46
    Part.LineSegment(Vector(-23.9, 19.5, 0), Vector(-25.9, 19.5, 0)),  # 47
    Part.LineSegment(Vector(-25.9, 19.5, 0), Vector(-25.9, 14.3, 0)),  # 48
    Part.LineSegment(Vector(-25.9, 14.3, 0), Vector(-27.5, 14.3, 0)),  # 49
    Part.LineSegment(Vector(-27.5, 14.3, 0), Vector(-32.4, 19.3, 0)),  # 50
    Part.LineSegment(Vector(-32.4, 19.3, 0), Vector(-32.4, 27.8, 0)),  # 51
    Part.LineSegment(Vector(-32.4, 27.8, 0), Vector(-27.5, 32.7, 0)),  # 52
    Part.LineSegment(Vector(-27.5, 32.7, 0), Vector(-25.9, 32.7, 0)),  # 53
    Part.LineSegment(Vector(-25.9, 32.7, 0), Vector(-25.9, 27.5, 0)),  # 54
    Part.LineSegment(Vector(-25.9, 27.5, 0), Vector(-23.9, 27.5, 0)),  # 55
    Part.LineSegment(Vector(-23.9, 27.5, 0), Vector(-23.9, 35.5, 0)),  # 56
    Part.ArcOfCircle(Part.Circle(Vector(-25.9, 35.5, 0), Vector(0, 0, 1), 2), math.radians(0), math.radians(90)),  # 57
    Part.LineSegment(Vector(-25.9, 37.5, 0), Vector(-33.9, 37.5, 0)),  # 58
    Part.LineSegment(Vector(-33.9, 37.5, 0), Vector(-33.9, 35.5, 0)),  # 59
    Part.LineSegment(Vector(-33.9, 35.5, 0), Vector(-28.7, 35.5, 0)),  # 60
    Part.LineSegment(Vector(-28.7, 35.5, 0), Vector(-28.7, 34, 0)),  # 61
    Part.LineSegment(Vector(-28.7, 34, 0), Vector(-33.7, 29, 0)),  # 62
    Part.LineSegment(Vector(-33.7, 29, 0), Vector(-42.2, 29, 0)),  # 63
    Part.LineSegment(Vector(-42.2, 29, 0), Vector(-47.1, 34, 0)),  # 64
    Part.LineSegment(Vector(-47.1, 34, 0), Vector(-47.1, 35.5, 0)),  # 65
    Part.LineSegment(Vector(-47.1, 35.5, 0), Vector(-41.9, 35.5, 0)),  # 66
    Part.LineSegment(Vector(-41.9, 35.5, 0), Vector(-41.9, 37.5, 0)),  # 67
], False)
sketch3.addConstraint([
    Sketcher.Constraint("Tangent", 0, 2, 1, 1),
    Sketcher.Constraint("Tangent", 1, 2, 2, 1),
    Sketcher.Constraint("Coincident", 2, 2, 3, 1),
    Sketcher.Constraint("Coincident", 3, 2, 4, 1),
    Sketcher.Constraint("Coincident", 4, 2, 5, 1),
    Sketcher.Constraint("Coincident", 5, 2, 6, 1),
    Sketcher.Constraint("Coincident", 6, 2, 7, 1),
    Sketcher.Constraint("Coincident", 7, 2, 8, 1),
    Sketcher.Constraint("Coincident", 8, 2, 9, 1),
    Sketcher.Constraint("Coincident", 9, 2, 10, 1),
    Sketcher.Constraint("Coincident", 10, 2, 11, 1),
    Sketcher.Constraint("Coincident", 11, 2, 12, 1),
    Sketcher.Constraint("Coincident", 12, 2, 13, 1),
    Sketcher.Constraint("Coincident", 13, 2, 14, 1),
    Sketcher.Constraint("Coincident", 14, 2, 15, 1),
    Sketcher.Constraint("Coincident", 15, 2, 16, 1),
    Sketcher.Constraint("Coincident", 16, 2, 17, 1),
    Sketcher.Constraint("Coincident", 17, 2, 18, 1),
    Sketcher.Constraint("Coincident", 18, 2, 19, 1),
    Sketcher.Constraint("Coincident", 19, 2, 20, 1),
    Sketcher.Constraint("Coincident", 20, 2, 21, 1),
    Sketcher.Constraint("Coincident", 21, 2, 22, 1),
    Sketcher.Constraint("Tangent", 22, 2, 23, 1),
    Sketcher.Constraint("Tangent", 23, 2, 24, 1),
    Sketcher.Constraint("Coincident", 24, 2, 25, 1),
    Sketcher.Constraint("Coincident", 25, 2, 26, 1),
    Sketcher.Constraint("Coincident", 26, 2, 27, 1),
    Sketcher.Constraint("Coincident", 27, 2, 28, 1),
    Sketcher.Constraint("Coincident", 28, 2, 29, 1),
    Sketcher.Constraint("Coincident", 29, 2, 30, 1),
    Sketcher.Constraint("Coincident", 30, 2, 31, 1),
    Sketcher.Constraint("Coincident", 31, 2, 32, 1),
    Sketcher.Constraint("Coincident", 32, 2, 33, 1),
    Sketcher.Constraint("Coincident", 33, 2, 34, 1),
    Sketcher.Constraint("Tangent", 34, 2, 35, 1),
    Sketcher.Constraint("Tangent", 35, 2, 36, 1),
    Sketcher.Constraint("Coincident", 36, 2, 37, 1),
    Sketcher.Constraint("Coincident", 37, 2, 38, 1),
    Sketcher.Constraint("Coincident", 38, 2, 39, 1),
    Sketcher.Constraint("Coincident", 39, 2, 40, 1),
    Sketcher.Constraint("Coincident", 40, 2, 41, 1),
    Sketcher.Constraint("Coincident", 41, 2, 42, 1),
    Sketcher.Constraint("Coincident", 42, 2, 43, 1),
    Sketcher.Constraint("Coincident", 43, 2, 44, 1),
    Sketcher.Constraint("Coincident", 44, 2, 45, 1),
    Sketcher.Constraint("Coincident", 45, 2, 46, 1),
    Sketcher.Constraint("Coincident", 46, 2, 47, 1),
    Sketcher.Constraint("Coincident", 47, 2, 48, 1),
    Sketcher.Constraint("Coincident", 48, 2, 49, 1),
    Sketcher.Constraint("Coincident", 49, 2, 50, 1),
    Sketcher.Constraint("Coincident", 50, 2, 51, 1),
    Sketcher.Constraint("Coincident", 51, 2, 52, 1),
    Sketcher.Constraint("Coincident", 52, 2, 53, 1),
    Sketcher.Constraint("Coincident", 53, 2, 54, 1),
    Sketcher.Constraint("Coincident", 54, 2, 55, 1),
    Sketcher.Constraint("Coincident", 55, 2, 56, 1),
    Sketcher.Constraint("Tangent", 56, 2, 57, 1),
    Sketcher.Constraint("Tangent", 57, 2, 58, 1),
    Sketcher.Constraint("Coincident", 58, 2, 59, 1),
    Sketcher.Constraint("Coincident", 59, 2, 60, 1),
    Sketcher.Constraint("Coincident", 60, 2, 61, 1),
    Sketcher.Constraint("Coincident", 61, 2, 62, 1),
    Sketcher.Constraint("Coincident", 62, 2, 63, 1),
    Sketcher.Constraint("Coincident", 63, 2, 64, 1),
    Sketcher.Constraint("Coincident", 64, 2, 65, 1),
    Sketcher.Constraint("Coincident", 65, 2, 66, 1),
    Sketcher.Constraint("Coincident", 66, 2, 67, 1),
    Sketcher.Constraint("Coincident", 67, 2, 0, 1),
    Sketcher.Constraint("Horizontal", 0),
    Sketcher.Constraint("Vertical", 2),
    Sketcher.Constraint("Horizontal", 3),
    Sketcher.Constraint("Vertical", 4),
    Sketcher.Constraint("Horizontal", 5),
    Sketcher.Constraint("Vertical", 7),
    Sketcher.Constraint("Horizontal", 9),
    Sketcher.Constraint("Vertical", 10),
    Sketcher.Constraint("Horizontal", 11),
    Sketcher.Constraint("Vertical", 12),
    Sketcher.Constraint("Horizontal", 13),
    Sketcher.Constraint("Vertical", 14),
    Sketcher.Constraint("Horizontal", 15),
    Sketcher.Constraint("Vertical", 17),
    Sketcher.Constraint("Horizontal", 19),
    Sketcher.Constraint("Vertical", 20),
    Sketcher.Constraint("Horizontal", 21),
    Sketcher.Constraint("Vertical", 22),
    Sketcher.Constraint("Horizontal", 24),
    Sketcher.Constraint("Vertical", 25),
    Sketcher.Constraint("Horizontal", 26),
    Sketcher.Constraint("Vertical", 27),
    Sketcher.Constraint("Horizontal", 29),
    Sketcher.Constraint("Vertical", 31),
    Sketcher.Constraint("Horizontal", 32),
    Sketcher.Constraint("Vertical", 33),
    Sketcher.Constraint("Horizontal", 34),
    Sketcher.Constraint("Vertical", 36),
    Sketcher.Constraint("Horizontal", 37),
    Sketcher.Constraint("Vertical", 38),
    Sketcher.Constraint("Horizontal", 39),
    Sketcher.Constraint("Vertical", 41),
    Sketcher.Constraint("Horizontal", 43),
    Sketcher.Constraint("Vertical", 44),
    Sketcher.Constraint("Horizontal", 45),
    Sketcher.Constraint("Vertical", 46),
    Sketcher.Constraint("Horizontal", 47),
    Sketcher.Constraint("Vertical", 48),
    Sketcher.Constraint("Horizontal", 49),
    Sketcher.Constraint("Vertical", 51),
    Sketcher.Constraint("Horizontal", 53),
    Sketcher.Constraint("Vertical", 54),
    Sketcher.Constraint("Horizontal", 55),
    Sketcher.Constraint("Vertical", 56),
    Sketcher.Constraint("Horizontal", 58),
    Sketcher.Constraint("Vertical", 59),
    Sketcher.Constraint("Horizontal", 60),
    Sketcher.Constraint("Vertical", 61),
    Sketcher.Constraint("Horizontal", 63),
    Sketcher.Constraint("Vertical", 65),
    Sketcher.Constraint("Horizontal", 66),
    Sketcher.Constraint("Vertical", 67),
    Sketcher.Constraint("Equal", 1, 23),
    Sketcher.Constraint("Equal", 23, 35),
    Sketcher.Constraint("Equal", 35, 57),
    Sketcher.Constraint("Perpendicular", 6, 8),
    Sketcher.Constraint("Perpendicular", 8, 16),
    Sketcher.Constraint("Perpendicular", 16, 18),
    Sketcher.Constraint("Parallel", 18, 28),
    Sketcher.Constraint("Perpendicular", 28, 30),
    Sketcher.Constraint("Parallel", 30, 40),
    Sketcher.Constraint("Perpendicular", 40, 42),
    Sketcher.Constraint("Perpendicular", 42, 50),
    Sketcher.Constraint("Perpendicular", 50, 52),
    Sketcher.Constraint("Parallel", 52, 62),
    Sketcher.Constraint("Perpendicular", 62, 64),
    Sketcher.Constraint("Horizontal", 23, 3, 35, 3),
    Sketcher.Constraint("Horizontal", 1, 3, 57, 3),
    Sketcher.Constraint("Horizontal", 22, 2, 25, 2),
    Sketcher.Constraint("Horizontal", 27, 2, 30, 2),
    Sketcher.Constraint("Horizontal", 26, 2, 31, 2),
    Sketcher.Constraint("Horizontal", 21, 2, 36, 2),
    Sketcher.Constraint("Horizontal", 19, 2, 38, 2),
    Sketcher.Constraint("Horizontal", 17, 2, 40, 2),
    Sketcher.Constraint("Horizontal", 16, 2, 41, 2),
    Sketcher.Constraint("Horizontal", 15, 2, 42, 2),
    Sketcher.Constraint("Horizontal", 13, 2, 44, 2),
    Sketcher.Constraint("Horizontal", 3, 2, 54, 2),
    Sketcher.Constraint("Horizontal", 56, 2, 59, 2),
    Sketcher.Constraint("Horizontal", 61, 2, 64, 2),
    Sketcher.Constraint("Horizontal", 60, 2, 65, 2),
    Sketcher.Constraint("Vertical", 1, 3, 23, 3),
    Sketcher.Constraint("Vertical", 35, 3, 57, 3),
    Sketcher.Constraint("Vertical", 0, 2, 3, 2),
    Sketcher.Constraint("Vertical", 5, 2, 8, 2),
    Sketcher.Constraint("Vertical", 2, 2, 11, 2),
    Sketcher.Constraint("Vertical", 4, 2, 13, 2),
    Sketcher.Constraint("Vertical", 15, 2, 18, 2),
    Sketcher.Constraint("Vertical", 14, 2, 19, 2),
    Sketcher.Constraint("Vertical", 34, 2, 37, 2),
    Sketcher.Constraint("Vertical", 39, 2, 42, 2),
    Sketcher.Constraint("Vertical", 38, 2, 43, 2),
    Sketcher.Constraint("Vertical", 36, 2, 45, 2),
    Sketcher.Constraint("Vertical", 44, 2, 47, 2),
    Sketcher.Constraint("Vertical", 42, 2, 49, 2),
    Sketcher.Constraint("Vertical", 41, 2, 50, 2),
    Sketcher.Constraint("Vertical", 49, 2, 52, 2),
    Sketcher.Constraint("Vertical", 48, 2, 53, 2),
    Sketcher.Constraint("Vertical", 33, 2, 58, 2),
    Sketcher.Constraint("Vertical", 31, 2, 60, 2),
    Sketcher.Constraint("Vertical", 29, 2, 62, 2),
    Sketcher.Constraint("Vertical", 28, 2, 63, 2),
    Sketcher.Constraint("Vertical", 25, 2, 66, 2),
    Sketcher.Constraint("Equal", 9, 15),
    Sketcher.Constraint("Equal", 26, 32),
    Sketcher.Constraint("Equal", 24, 34),
    Sketcher.Constraint("Equal", 19, 39),
    Sketcher.Constraint("Equal", 58, 2),
    Sketcher.Constraint("Equal", 63, 7),
    Sketcher.Constraint("Equal", 66, 10),
    Sketcher.Constraint("Equal", 7, 17),
    Sketcher.Constraint("Equal", 10, 20),
    Sketcher.Constraint("Equal", 2, 22),
    Sketcher.Constraint("Equal", 53, 27),
    Sketcher.Constraint("Equal", 38, 48),
    Sketcher.Constraint("Equal", 41, 51),
    Sketcher.Constraint("Equal", 48, 54),
    Sketcher.Constraint("Equal", 31, 61),
    Sketcher.Constraint("Equal", 8, 16),
    Sketcher.Constraint("Equal", 18, 28),
    Sketcher.Constraint("Radius", 1, 2.0),
    Sketcher.Constraint("DistanceX", 0, 2, 0, 1, 8.0),
    Sketcher.Constraint("DistanceY", 12, 2, 12, 1, 20.0),
    Sketcher.Constraint("DistanceX", 26, 2, 26, 1, 5.2),
    Sketcher.Constraint("DistanceX", 9, 2, 9, 1, 1.559212),
    Sketcher.Constraint("Distance", 6, 6.98733),
    Sketcher.Constraint("DistanceX", 5, 1, 5, 2, 1.573336),
    Sketcher.Constraint("DistanceX", 29, 1, 29, 2, 8.518424),
    Sketcher.Constraint("DistanceY", 4, 1, 4, 2, 5.194776),
    Sketcher.Constraint("DistanceY", 14, 1, 14, 2, 5.205224),
    Sketcher.Constraint("DistanceY", -1, 1, 4, 2, 32.73604),
    Sketcher.Constraint("DistanceX", 5, 2, -1, 1, 48.372121),
])
pad2 = body.newObject("PartDesign::Pad", "Pad001")
pad2.Profile = sketch3
pad2.Length = 150

doc.recompute()
